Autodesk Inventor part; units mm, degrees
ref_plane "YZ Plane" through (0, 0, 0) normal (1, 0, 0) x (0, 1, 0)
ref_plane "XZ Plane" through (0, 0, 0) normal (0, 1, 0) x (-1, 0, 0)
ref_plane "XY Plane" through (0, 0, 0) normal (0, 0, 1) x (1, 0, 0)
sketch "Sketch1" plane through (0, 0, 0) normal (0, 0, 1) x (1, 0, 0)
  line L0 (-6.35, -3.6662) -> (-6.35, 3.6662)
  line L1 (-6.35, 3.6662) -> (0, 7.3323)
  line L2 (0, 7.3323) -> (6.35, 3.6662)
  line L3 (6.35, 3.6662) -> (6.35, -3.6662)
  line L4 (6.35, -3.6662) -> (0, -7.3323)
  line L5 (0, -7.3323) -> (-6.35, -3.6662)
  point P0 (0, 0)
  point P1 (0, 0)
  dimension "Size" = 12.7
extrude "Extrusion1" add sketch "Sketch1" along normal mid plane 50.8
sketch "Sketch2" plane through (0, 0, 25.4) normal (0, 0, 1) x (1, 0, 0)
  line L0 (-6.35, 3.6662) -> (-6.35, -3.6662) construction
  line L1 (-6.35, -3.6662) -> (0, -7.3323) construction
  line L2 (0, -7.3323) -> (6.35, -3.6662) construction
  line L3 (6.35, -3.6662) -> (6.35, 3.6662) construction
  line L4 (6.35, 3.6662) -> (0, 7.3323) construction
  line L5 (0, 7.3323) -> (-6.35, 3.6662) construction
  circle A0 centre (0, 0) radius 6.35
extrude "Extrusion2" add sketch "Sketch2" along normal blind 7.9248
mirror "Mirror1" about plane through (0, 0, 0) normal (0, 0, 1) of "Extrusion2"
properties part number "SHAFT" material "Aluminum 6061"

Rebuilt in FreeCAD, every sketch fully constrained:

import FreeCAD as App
import Part
import Sketcher
from FreeCAD import Vector
Q = App.Units.Quantity


def add_polygon(sketch, points):
    """Adds a closed chain of lines whose ends are joined by coincident constraints."""
    first, n = sketch.GeometryCount, len(points)
    for a, b in zip(points, points[1:] + points[:1]):
        sketch.addGeometry(Part.LineSegment(App.Vector(*a, 0), App.Vector(*b, 0)), False)
    for i in range(n):
        sketch.addConstraint(Sketcher.Constraint("Coincident", first + i, 2, first + (i + 1) % n, 1))

doc = App.newDocument("Part")
body = doc.addObject("PartDesign::Body", "Body")

sketch1 = body.newObject("Sketcher::SketchObject", "Sketch")
sketch1.AttachmentSupport = (doc.getObject("XY_Plane"), [""])
sketch1.MapMode = "FlatFace"
add_polygon(sketch1, [(-6.35, 3.6662), (-6.35, -3.6662), (0, -7.3323), (6.35, -3.6662), (6.35, 3.6662), (0, 7.3323)])
sketch1.addConstraint(Sketcher.Constraint("Vertical", 0))
sketch1.addConstraint(Sketcher.Constraint("Vertical", 3))
sketch1.addConstraint(Sketcher.Constraint("Symmetric", 0, 2, 3, 2, -1, 1))
sketch1.addConstraint(Sketcher.Constraint("Symmetric", 1, 2, 4, 2, -1, 1))
sketch1.addConstraint(Sketcher.Constraint("PointOnObject", 1, 2, -2))
sketch1.addConstraint(Sketcher.Constraint("Parallel", 2, 5))
sketch1.addConstraint(Sketcher.Constraint("Horizontal", 0, 2, 2, 2))
sketch1.addConstraint(Sketcher.Constraint("DistanceX", 0, 2, 2, 2, Q("0.5 in")))
sketch1.addConstraint(Sketcher.Constraint("Angle", 1, Q("-29.9995 deg")))
sketch1.addConstraint(Sketcher.Constraint("DistanceY", 1, 2, 3, 2, Q("0.433 in")))
pad1 = body.newObject("PartDesign::Pad", "Pad")
pad1.Profile = sketch1
pad1.Length = Q("2 in")
pad1.Midplane = True

sketch2 = body.newObject("Sketcher::SketchObject", "Sketch001")
sketch2.AttachmentSupport = (doc.getObject("XY_Plane"), [""])
sketch2.MapMode = "FlatFace"
sketch2.AttachmentOffset = App.Placement(Vector(0, 0, 1 * 25.4), App.Rotation())
sketch2.addGeometry(Part.Circle(Vector(0, 0, 0), Vector(0, 0, 1), 6.35), False)
sketch2.addConstraint(Sketcher.Constraint("Coincident", 0, 3, -1, 1))
sketch2.addConstraint(Sketcher.Constraint("Diameter", 0, Q("0.5 in")))
pad2 = body.newObject("PartDesign::Pad", "Pad001")
pad2.Profile = sketch2
pad2.Length = Q("0.312 in")
doc.recompute()

mirrored = body.newObject("PartDesign::Mirrored", "Mirrored")
mirrored.Originals = [pad2]
mirrored.MirrorPlane = (doc.getObject("XY_Plane"), [""])
body.Tip = mirrored

doc.recompute()
